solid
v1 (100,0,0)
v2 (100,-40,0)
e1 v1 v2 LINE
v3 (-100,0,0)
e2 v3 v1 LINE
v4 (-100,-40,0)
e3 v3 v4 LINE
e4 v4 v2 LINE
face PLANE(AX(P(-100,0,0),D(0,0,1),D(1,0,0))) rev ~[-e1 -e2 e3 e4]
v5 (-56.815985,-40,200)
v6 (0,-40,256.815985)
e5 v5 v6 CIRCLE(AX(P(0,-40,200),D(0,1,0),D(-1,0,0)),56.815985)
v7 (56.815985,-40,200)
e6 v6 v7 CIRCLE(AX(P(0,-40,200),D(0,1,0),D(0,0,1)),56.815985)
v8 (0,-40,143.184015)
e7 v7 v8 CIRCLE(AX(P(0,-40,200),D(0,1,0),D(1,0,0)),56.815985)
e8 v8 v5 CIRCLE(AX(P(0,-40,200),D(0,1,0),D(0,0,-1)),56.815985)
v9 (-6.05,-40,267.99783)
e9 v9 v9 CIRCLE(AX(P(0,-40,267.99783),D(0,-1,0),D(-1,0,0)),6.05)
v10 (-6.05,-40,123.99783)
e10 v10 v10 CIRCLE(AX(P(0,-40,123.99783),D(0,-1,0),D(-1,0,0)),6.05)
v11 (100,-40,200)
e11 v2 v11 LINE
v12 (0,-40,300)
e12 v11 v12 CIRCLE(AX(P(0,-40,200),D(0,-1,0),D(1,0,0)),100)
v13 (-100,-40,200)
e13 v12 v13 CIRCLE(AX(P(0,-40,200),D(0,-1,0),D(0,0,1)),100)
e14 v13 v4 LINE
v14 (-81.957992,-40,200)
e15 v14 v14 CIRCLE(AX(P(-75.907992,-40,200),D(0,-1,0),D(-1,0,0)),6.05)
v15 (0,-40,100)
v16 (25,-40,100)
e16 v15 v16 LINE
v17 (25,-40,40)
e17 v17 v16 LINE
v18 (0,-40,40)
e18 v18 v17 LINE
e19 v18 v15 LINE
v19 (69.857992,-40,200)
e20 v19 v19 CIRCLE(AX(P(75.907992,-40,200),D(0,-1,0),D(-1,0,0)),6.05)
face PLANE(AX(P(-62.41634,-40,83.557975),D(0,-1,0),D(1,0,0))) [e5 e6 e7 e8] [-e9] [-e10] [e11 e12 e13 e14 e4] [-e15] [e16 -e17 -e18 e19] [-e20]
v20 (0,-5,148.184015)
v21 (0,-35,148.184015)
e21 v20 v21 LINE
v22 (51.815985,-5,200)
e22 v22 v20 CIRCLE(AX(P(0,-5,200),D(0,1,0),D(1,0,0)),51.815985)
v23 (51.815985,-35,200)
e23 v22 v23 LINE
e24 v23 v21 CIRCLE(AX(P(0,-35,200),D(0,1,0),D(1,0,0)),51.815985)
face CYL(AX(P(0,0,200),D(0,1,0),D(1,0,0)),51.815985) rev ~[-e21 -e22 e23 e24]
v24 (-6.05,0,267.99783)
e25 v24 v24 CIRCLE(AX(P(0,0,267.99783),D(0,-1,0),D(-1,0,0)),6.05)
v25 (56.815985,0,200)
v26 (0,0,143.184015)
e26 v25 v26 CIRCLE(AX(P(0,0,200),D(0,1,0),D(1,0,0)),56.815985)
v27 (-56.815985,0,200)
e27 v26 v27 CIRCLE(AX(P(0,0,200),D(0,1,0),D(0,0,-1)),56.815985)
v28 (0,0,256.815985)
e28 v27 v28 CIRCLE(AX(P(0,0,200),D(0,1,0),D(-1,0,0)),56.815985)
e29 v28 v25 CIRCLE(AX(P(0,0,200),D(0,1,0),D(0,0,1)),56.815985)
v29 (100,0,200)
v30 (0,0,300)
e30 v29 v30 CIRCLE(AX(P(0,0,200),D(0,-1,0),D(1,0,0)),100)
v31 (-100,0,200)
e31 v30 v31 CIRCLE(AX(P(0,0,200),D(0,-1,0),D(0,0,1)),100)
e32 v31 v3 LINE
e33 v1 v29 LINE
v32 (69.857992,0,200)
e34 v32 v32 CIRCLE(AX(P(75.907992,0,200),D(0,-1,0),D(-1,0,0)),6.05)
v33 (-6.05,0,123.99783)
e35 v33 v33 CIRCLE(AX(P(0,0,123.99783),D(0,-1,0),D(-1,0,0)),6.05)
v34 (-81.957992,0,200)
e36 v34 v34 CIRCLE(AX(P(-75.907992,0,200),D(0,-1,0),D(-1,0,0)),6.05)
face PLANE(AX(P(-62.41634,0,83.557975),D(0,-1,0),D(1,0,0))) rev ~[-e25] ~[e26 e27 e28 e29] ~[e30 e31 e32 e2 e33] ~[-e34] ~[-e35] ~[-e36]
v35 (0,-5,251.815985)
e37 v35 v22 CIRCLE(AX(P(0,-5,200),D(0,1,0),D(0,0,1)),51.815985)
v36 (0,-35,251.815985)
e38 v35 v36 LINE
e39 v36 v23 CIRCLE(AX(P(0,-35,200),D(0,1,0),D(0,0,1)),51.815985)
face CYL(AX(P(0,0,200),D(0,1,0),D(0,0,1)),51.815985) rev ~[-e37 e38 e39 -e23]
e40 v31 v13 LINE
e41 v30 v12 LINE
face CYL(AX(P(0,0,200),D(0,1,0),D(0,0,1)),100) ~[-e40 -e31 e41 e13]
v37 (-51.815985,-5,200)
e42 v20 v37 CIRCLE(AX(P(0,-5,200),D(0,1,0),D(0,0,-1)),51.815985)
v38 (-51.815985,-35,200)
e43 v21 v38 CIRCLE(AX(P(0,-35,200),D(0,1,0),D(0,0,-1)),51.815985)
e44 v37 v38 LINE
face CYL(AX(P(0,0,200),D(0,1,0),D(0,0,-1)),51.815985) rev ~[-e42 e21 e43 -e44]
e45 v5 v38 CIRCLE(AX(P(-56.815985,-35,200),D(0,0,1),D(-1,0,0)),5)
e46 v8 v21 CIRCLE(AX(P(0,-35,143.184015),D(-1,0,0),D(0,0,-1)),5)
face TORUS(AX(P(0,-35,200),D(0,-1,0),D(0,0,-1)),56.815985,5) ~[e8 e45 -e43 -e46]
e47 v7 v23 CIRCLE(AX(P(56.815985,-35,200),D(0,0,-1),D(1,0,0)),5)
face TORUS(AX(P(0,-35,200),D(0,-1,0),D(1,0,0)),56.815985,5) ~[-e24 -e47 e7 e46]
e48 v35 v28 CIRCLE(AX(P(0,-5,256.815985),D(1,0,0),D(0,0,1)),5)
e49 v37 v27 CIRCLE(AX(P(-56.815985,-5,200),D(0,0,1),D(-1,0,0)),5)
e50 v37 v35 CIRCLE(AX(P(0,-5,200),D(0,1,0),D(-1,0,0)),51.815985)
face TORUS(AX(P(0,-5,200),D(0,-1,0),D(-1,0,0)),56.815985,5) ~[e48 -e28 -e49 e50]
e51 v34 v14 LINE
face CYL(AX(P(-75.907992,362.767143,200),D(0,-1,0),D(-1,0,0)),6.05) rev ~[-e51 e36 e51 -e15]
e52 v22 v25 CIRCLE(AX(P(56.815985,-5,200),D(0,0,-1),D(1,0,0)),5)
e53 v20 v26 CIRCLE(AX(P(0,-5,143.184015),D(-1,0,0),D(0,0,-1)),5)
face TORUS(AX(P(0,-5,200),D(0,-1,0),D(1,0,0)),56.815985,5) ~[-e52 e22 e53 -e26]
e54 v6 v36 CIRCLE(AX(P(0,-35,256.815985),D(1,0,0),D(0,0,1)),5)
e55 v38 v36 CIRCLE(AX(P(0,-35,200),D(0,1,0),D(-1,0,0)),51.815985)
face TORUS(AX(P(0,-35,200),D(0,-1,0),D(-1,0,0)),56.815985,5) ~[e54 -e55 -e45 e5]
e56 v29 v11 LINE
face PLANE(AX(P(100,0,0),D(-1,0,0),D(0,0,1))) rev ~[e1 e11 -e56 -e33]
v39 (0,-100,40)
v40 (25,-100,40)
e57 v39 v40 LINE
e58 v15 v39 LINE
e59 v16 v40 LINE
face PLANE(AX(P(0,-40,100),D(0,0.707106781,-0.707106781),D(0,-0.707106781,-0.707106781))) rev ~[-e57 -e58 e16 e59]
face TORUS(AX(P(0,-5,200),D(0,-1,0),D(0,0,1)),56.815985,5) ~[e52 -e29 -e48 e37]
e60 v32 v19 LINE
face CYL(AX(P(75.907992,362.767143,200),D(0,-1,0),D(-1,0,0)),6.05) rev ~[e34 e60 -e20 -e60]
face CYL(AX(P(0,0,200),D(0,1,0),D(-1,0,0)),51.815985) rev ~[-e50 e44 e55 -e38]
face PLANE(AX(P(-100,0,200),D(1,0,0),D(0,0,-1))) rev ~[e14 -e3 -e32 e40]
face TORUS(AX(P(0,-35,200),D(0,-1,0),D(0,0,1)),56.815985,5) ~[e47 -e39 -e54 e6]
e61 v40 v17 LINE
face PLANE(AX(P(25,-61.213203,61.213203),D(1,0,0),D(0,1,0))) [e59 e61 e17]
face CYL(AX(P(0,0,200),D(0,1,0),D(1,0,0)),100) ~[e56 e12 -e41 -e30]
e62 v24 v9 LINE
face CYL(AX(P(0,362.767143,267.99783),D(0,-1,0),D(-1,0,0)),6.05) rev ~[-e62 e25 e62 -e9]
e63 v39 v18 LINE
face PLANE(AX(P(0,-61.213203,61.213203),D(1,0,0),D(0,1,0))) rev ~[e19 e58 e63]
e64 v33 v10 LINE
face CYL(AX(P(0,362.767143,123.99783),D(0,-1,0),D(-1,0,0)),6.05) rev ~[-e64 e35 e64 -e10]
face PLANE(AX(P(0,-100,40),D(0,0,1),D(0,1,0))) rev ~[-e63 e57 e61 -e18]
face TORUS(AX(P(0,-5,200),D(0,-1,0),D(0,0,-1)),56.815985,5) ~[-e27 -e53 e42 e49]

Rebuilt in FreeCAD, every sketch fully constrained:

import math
import FreeCAD as App
import Part
import Sketcher


def edges_at(feature, points):
    """Names of the edges that pass closest to the given points."""
    edges = feature.Shape.Edges
    near = lambda p: min(range(len(edges)), key=lambda i: edges[i].distToShape(Part.Vertex(*p))[0])
    return sorted({f"Edge{near(p) + 1}" for p in points})

doc = App.newDocument("Part")
body = doc.addObject("PartDesign::Body", "Body")

sketch1 = body.newObject("Sketcher::SketchObject", "Sketch")
sketch1.AttachmentSupport = (doc.getObject("XZ_Plane"), [""])
sketch1.MapMode = "FlatFace"
sketch1.addGeometry([
    Part.LineSegment(App.Vector(-100, 0, 0), App.Vector(100, 0, 0)),
    Part.LineSegment(App.Vector(100, 0, 0), App.Vector(100, 200, 0)),
    Part.ArcOfCircle(Part.Circle(App.Vector(0, 200, 0), App.Vector(0, 0, 1), 100), math.radians(0), math.radians(90)),
    Part.ArcOfCircle(Part.Circle(App.Vector(0, 200, 0), App.Vector(0, 0, 1), 100), math.radians(90), math.radians(180)),
    Part.LineSegment(App.Vector(-100, 200, 0), App.Vector(-100, 0, 0)),
    Part.ArcOfCircle(Part.Circle(App.Vector(0, 200, 0), App.Vector(0, 0, 1), 51.815985), math.radians(-90), math.radians(0)),
    Part.ArcOfCircle(Part.Circle(App.Vector(0, 200, 0), App.Vector(0, 0, 1), 51.815985), math.radians(180), math.radians(270)),
    Part.ArcOfCircle(Part.Circle(App.Vector(0, 200, 0), App.Vector(0, 0, 1), 51.815985), math.radians(90), math.radians(180)),
    Part.ArcOfCircle(Part.Circle(App.Vector(0, 200, 0), App.Vector(0, 0, 1), 51.815985), math.radians(0), math.radians(90)),
], False)
sketch1.addConstraint([
    Sketcher.Constraint("Coincident", 0, 2, 1, 1),
    Sketcher.Constraint("Tangent", 1, 2, 2, 1),
    Sketcher.Constraint("Tangent", 2, 2, 3, 1),
    Sketcher.Constraint("Tangent", 3, 2, 4, 1),
    Sketcher.Constraint("Coincident", 4, 2, 0, 1),
    Sketcher.Constraint("Tangent", 5, 1, 6, 2),
    Sketcher.Constraint("Tangent", 6, 1, 7, 2),
    Sketcher.Constraint("Tangent", 7, 1, 8, 2),
    Sketcher.Constraint("Tangent", 8, 1, 5, 2),
    Sketcher.Constraint("Horizontal", 0),
    Sketcher.Constraint("Vertical", 1),
    Sketcher.Constraint("Vertical", 4),
    Sketcher.Constraint("Coincident", 5, 3, 2, 3),
    Sketcher.Constraint("Equal", 2, 3),
    Sketcher.Constraint("Equal", 5, 6),
    Sketcher.Constraint("Symmetric", 0, 2, 4, 2, -1, 1),
    Sketcher.Constraint("PointOnObject", 2, 2, -2),
    Sketcher.Constraint("PointOnObject", 5, 1, -2),
    Sketcher.Constraint("PointOnObject", 7, 1, -2),
    Sketcher.Constraint("Horizontal", 3, 2, 6, 1),
    Sketcher.Constraint("Horizontal", 6, 1, 8, 1),
    Sketcher.Constraint("Equal", 0, 1),
    Sketcher.Constraint("Radius", 2, 100.0),
    Sketcher.Constraint("Radius", 5, 51.815985),
])
pad1 = body.newObject("PartDesign::Pad", "Pad")
pad1.Profile = sketch1
pad1.Length = 40

sketch2 = body.newObject("Sketcher::SketchObject", "Sketch001")
sketch2.AttachmentSupport = (doc.getObject("XZ_Plane"), [""])
sketch2.MapMode = "FlatFace"
sketch2.addGeometry([
    Part.Circle(App.Vector(-75.907992, 200, 0), App.Vector(0, 0, 1), 6.05),
    Part.Circle(App.Vector(0, 267.99783, 0), App.Vector(0, 0, 1), 6.05),
    Part.Circle(App.Vector(75.907992, 200, 0), App.Vector(0, 0, 1), 6.05),
    Part.Circle(App.Vector(0, 123.99783, 0), App.Vector(0, 0, 1), 6.05),
], False)
sketch2.addConstraint([
    Sketcher.Constraint("Equal", 0, 1),
    Sketcher.Constraint("Equal", 1, 2),
    Sketcher.Constraint("Equal", 2, 3),
    Sketcher.Constraint("Symmetric", 0, 3, 2, 3, -2),
    Sketcher.Constraint("PointOnObject", 1, 3, -2),
    Sketcher.Constraint("PointOnObject", 3, 3, -2),
    Sketcher.Constraint("Diameter", 0, 12.1),
    Sketcher.Constraint("DistanceY", -1, 1, 0, 3, 200.0),
    Sketcher.Constraint("DistanceY", 3, 3, 1, 3, 144.0),
    Sketcher.Constraint("DistanceY", -1, 1, 1, 3, 267.99783),
    Sketcher.Constraint("DistanceX", 0, 3, -1, 1, 75.907992),
])
doc.recompute()
hole = body.newObject("PartDesign::Hole", "Hole")
hole.Profile = sketch2
hole.ThreadType = "None"
hole.Diameter = 12.1
hole.DepthType = "ThroughAll"
hole.Reversed = True
doc.recompute()

fillet = body.newObject("PartDesign::Fillet", "Fillet")
fillet.Base = (hole, edges_at(hole, [(36.639, -40, 163.361)]))
fillet.Radius = 5
doc.recompute()

fillet2 = body.newObject("PartDesign::Fillet", "Fillet001")
fillet2.Base = (fillet, edges_at(fillet, [(36.639, 0, 163.361)]))
fillet2.Radius = 5

sketch3 = body.newObject("Sketcher::SketchObject", "Sketch002")
sketch3.AttachmentSupport = (doc.getObject("YZ_Plane"), [""])
sketch3.MapMode = "FlatFace"
sketch3.addGeometry([
    Part.LineSegment(App.Vector(-100, 40, 0), App.Vector(-40, 40, 0)),
    Part.LineSegment(App.Vector(-40, 40, 0), App.Vector(-40, 100, 0)),
    Part.LineSegment(App.Vector(-40, 100, 0), App.Vector(-100, 40, 0)),
], False)
sketch3.addConstraint([
    Sketcher.Constraint("Coincident", 0, 2, 1, 1),
    Sketcher.Constraint("Coincident", 1, 2, 2, 1),
    Sketcher.Constraint("Coincident", 2, 2, 0, 1),
    Sketcher.Constraint("Horizontal", 0),
    Sketcher.Constraint("Vertical", 1),
    Sketcher.Constraint("Equal", 0, 1),
    Sketcher.Constraint("DistanceX", 0, 1, 0, 2, 60.0),
    Sketcher.Constraint("DistanceX", 0, 2, -1, 1, 40.0),
    Sketcher.Constraint("DistanceY", -1, 1, 0, 2, 40.0),
])
pad2 = body.newObject("PartDesign::Pad", "Pad001")
pad2.Profile = sketch3
pad2.Length = 25

doc.recompute()
